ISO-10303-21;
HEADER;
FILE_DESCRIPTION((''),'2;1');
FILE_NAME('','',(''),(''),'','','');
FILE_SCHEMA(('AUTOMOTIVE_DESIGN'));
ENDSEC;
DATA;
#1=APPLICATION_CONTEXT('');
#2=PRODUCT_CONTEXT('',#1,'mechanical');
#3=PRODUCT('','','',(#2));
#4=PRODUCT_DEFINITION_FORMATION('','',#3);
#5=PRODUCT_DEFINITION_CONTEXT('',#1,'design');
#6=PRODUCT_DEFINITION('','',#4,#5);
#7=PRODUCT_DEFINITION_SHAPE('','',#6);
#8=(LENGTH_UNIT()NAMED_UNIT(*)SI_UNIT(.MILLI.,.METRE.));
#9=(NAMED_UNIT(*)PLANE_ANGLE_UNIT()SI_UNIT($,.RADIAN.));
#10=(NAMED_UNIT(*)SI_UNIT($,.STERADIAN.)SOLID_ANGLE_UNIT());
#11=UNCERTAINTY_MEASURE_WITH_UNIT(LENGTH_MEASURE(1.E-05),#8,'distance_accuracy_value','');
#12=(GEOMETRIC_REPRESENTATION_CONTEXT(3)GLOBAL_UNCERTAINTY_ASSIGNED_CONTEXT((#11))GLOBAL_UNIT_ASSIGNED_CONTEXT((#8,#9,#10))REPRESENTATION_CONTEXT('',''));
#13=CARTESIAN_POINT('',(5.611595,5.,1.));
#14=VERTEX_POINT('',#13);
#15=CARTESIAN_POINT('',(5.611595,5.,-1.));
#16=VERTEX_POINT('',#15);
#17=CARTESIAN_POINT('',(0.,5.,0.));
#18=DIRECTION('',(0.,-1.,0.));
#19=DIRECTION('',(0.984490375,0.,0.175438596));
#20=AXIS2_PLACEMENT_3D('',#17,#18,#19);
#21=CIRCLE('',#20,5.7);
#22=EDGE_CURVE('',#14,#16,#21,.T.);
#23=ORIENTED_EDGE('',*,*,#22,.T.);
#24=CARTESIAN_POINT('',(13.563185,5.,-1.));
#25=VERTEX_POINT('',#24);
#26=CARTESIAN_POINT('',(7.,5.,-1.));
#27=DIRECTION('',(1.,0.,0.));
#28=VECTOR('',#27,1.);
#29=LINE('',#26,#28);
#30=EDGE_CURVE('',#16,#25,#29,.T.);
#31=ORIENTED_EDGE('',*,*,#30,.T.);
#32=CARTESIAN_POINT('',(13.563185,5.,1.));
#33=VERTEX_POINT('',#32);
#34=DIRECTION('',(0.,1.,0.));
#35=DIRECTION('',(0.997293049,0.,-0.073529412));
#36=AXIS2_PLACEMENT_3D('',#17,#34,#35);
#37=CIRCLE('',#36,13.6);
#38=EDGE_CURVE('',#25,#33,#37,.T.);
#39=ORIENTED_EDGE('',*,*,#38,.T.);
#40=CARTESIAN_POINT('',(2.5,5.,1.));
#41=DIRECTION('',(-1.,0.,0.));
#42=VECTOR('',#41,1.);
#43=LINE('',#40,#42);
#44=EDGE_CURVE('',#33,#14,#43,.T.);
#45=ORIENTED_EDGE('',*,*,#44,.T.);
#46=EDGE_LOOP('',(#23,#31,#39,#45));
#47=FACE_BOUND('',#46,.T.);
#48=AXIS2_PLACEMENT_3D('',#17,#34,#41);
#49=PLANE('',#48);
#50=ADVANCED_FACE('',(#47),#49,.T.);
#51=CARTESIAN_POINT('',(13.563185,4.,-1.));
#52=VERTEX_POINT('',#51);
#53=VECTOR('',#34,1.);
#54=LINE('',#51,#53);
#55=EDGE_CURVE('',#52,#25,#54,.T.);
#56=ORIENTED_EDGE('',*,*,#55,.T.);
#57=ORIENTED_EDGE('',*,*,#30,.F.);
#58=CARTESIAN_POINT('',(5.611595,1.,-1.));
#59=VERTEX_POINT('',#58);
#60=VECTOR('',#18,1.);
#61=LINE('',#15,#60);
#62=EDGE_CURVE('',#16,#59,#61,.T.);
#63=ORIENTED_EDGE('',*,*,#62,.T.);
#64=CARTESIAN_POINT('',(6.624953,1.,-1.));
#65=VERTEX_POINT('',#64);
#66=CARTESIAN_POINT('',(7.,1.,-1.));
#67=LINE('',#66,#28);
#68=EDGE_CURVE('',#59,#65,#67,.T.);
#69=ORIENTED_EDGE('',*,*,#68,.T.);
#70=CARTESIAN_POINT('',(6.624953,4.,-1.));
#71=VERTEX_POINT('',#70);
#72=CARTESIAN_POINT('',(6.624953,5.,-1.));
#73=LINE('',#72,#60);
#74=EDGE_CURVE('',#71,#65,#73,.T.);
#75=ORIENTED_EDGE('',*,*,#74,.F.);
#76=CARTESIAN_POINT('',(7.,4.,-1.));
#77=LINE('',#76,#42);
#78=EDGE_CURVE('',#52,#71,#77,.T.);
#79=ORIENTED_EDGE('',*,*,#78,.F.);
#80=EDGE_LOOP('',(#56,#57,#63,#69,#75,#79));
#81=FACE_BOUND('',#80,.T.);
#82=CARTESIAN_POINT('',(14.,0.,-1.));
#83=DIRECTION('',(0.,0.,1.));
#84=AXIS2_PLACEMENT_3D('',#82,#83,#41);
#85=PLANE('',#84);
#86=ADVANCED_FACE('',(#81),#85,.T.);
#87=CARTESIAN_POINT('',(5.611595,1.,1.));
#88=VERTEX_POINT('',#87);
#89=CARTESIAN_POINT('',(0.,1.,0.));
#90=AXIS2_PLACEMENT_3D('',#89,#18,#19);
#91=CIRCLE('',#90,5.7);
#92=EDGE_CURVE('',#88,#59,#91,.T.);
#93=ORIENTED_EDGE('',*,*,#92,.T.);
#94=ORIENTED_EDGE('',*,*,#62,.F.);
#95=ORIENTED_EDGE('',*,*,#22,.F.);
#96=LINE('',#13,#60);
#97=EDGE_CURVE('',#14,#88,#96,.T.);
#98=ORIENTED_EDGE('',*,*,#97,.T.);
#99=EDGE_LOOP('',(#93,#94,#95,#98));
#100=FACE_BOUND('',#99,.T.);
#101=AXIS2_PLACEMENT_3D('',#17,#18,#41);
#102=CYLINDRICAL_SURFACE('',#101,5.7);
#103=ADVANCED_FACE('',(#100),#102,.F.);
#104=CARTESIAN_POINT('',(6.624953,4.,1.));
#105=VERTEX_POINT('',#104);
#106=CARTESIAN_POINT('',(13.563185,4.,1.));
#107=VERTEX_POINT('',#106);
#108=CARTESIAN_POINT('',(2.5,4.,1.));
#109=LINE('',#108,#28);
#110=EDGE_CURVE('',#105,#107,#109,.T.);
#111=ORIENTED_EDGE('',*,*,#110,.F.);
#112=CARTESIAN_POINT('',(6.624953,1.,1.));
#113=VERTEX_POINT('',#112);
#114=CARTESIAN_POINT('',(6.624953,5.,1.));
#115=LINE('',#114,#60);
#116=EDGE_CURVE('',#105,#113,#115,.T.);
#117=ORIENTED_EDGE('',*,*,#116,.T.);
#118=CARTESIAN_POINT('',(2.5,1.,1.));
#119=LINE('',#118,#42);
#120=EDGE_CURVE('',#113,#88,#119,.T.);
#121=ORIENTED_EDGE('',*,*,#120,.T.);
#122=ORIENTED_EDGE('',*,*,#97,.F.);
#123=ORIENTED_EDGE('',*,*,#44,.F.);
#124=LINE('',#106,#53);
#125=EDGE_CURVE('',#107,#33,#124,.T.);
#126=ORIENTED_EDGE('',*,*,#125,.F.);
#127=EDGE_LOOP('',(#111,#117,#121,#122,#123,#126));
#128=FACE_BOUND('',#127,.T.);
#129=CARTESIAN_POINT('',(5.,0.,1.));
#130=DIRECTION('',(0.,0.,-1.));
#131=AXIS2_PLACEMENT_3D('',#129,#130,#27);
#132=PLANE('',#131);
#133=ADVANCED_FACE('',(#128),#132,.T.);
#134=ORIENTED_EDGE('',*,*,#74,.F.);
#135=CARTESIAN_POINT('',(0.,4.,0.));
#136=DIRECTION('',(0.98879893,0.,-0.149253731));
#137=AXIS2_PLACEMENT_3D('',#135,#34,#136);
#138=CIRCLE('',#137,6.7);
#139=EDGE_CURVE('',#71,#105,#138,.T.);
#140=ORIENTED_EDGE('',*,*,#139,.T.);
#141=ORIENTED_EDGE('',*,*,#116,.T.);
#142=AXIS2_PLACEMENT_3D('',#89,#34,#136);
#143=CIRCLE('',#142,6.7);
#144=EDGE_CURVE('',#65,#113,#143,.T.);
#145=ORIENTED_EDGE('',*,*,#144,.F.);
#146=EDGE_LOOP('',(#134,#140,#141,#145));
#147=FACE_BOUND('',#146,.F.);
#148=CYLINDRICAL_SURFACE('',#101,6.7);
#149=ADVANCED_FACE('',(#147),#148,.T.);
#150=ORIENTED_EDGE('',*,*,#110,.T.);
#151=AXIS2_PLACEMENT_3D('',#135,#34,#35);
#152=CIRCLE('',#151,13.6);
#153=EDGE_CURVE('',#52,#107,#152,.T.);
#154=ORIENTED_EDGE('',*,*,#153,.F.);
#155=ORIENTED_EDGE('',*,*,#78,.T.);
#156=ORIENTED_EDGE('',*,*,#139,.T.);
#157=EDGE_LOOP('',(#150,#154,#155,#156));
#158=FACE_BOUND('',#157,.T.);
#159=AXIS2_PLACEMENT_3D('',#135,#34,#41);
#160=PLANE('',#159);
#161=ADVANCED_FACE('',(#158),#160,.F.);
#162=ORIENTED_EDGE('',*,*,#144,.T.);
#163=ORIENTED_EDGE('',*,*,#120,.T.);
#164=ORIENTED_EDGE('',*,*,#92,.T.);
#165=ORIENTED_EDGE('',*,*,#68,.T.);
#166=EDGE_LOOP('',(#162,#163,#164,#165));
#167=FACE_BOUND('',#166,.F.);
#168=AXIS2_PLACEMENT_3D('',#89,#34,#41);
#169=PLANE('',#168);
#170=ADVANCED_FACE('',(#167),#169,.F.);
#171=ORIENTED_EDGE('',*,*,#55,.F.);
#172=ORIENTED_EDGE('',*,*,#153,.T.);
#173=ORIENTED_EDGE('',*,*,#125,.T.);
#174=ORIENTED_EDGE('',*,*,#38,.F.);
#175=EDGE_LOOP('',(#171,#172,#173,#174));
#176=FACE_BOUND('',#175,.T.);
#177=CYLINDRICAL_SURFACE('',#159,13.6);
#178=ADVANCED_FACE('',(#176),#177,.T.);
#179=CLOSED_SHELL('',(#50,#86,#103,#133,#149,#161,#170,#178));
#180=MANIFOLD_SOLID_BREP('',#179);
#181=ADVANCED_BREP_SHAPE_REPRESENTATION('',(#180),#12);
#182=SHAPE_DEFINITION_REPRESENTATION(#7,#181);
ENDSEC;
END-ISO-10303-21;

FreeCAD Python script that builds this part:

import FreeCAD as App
import Part
import Sketcher

V = App.Vector

doc = App.newDocument("Part")
body = doc.addObject("PartDesign::Body", "Body")

sketch1 = doc.addObject("Sketcher::SketchObject", "Sketch")
body.addObject(sketch1)
sketch1.AttachmentSupport = (doc.XY_Plane, [""])
sketch1.MapMode = "FlatFace"
sketch1.addGeometry(Part.LineSegment(V(-13.6, 5, 0), V(-13.6, 4, 0)), False)
sketch1.addGeometry(Part.LineSegment(V(-13.6, 4, 0), V(-6.7, 4, 0)), False)
sketch1.addGeometry(Part.LineSegment(V(-6.7, 4, 0), V(-6.7, 1, 0)), False)
sketch1.addGeometry(Part.LineSegment(V(-6.7, 1, 0), V(-5.7, 1, 0)), False)
sketch1.addGeometry(Part.LineSegment(V(-5.7, 1, 0), V(-5.7, 5, 0)), False)
sketch1.addGeometry(Part.LineSegment(V(-5.7, 5, 0), V(-13.6, 5, 0)), False)
sketch1.addConstraint(Sketcher.Constraint("Coincident", 0, 2, 1, 1))
sketch1.addConstraint(Sketcher.Constraint("Coincident", 1, 2, 2, 1))
sketch1.addConstraint(Sketcher.Constraint("Coincident", 2, 2, 3, 1))
sketch1.addConstraint(Sketcher.Constraint("Coincident", 3, 2, 4, 1))
sketch1.addConstraint(Sketcher.Constraint("Coincident", 4, 2, 5, 1))
sketch1.addConstraint(Sketcher.Constraint("Coincident", 5, 2, 0, 1))
sketch1.addConstraint(Sketcher.Constraint("Vertical", 0))
sketch1.addConstraint(Sketcher.Constraint("Horizontal", 1))
sketch1.addConstraint(Sketcher.Constraint("Vertical", 2))
sketch1.addConstraint(Sketcher.Constraint("Horizontal", 3))
sketch1.addConstraint(Sketcher.Constraint("Vertical", 4))
sketch1.addConstraint(Sketcher.Constraint("Horizontal", 5))
sketch1.addConstraint(Sketcher.Constraint("Equal", 3, 0))
sketch1.addConstraint(Sketcher.Constraint("DistanceX", 3, 1, 3, 2, 1.0))
sketch1.addConstraint(Sketcher.Constraint("DistanceY", 2, 2, 2, 1, 3.0))
sketch1.addConstraint(Sketcher.Constraint("DistanceX", 1, 1, 1, 2, 6.9))
sketch1.addConstraint(Sketcher.Constraint("DistanceY", -1, 1, 2, 2, 1.0))
sketch1.addConstraint(Sketcher.Constraint("DistanceX", 3, 2, -1, 1, 5.7))
revolution = doc.addObject("PartDesign::Revolution", "Revolution")
body.addObject(revolution)
revolution.Profile = sketch1
revolution.ReferenceAxis = (sketch1, ["V_Axis"])
revolution.Angle = 360

sketch2 = doc.addObject("Sketcher::SketchObject", "Sketch001")
body.addObject(sketch2)
sketch2.AttachmentSupport = (doc.XZ_Plane, [""])
sketch2.MapMode = "FlatFace"
sketch2.addGeometry(Part.LineSegment(V(5, -1, 0), V(5, 1, 0)), False)
sketch2.addGeometry(Part.LineSegment(V(5, 1, 0), V(14, 1, 0)), False)
sketch2.addGeometry(Part.LineSegment(V(14, 1, 0), V(14, -1, 0)), False)
sketch2.addGeometry(Part.LineSegment(V(14, -1, 0), V(5, -1, 0)), False)
sketch2.addConstraint(Sketcher.Constraint("Coincident", 0, 2, 1, 1))
sketch2.addConstraint(Sketcher.Constraint("Coincident", 1, 2, 2, 1))
sketch2.addConstraint(Sketcher.Constraint("Coincident", 2, 2, 3, 1))
sketch2.addConstraint(Sketcher.Constraint("Coincident", 3, 2, 0, 1))
sketch2.addConstraint(Sketcher.Constraint("Vertical", 0))
sketch2.addConstraint(Sketcher.Constraint("Horizontal", 1))
sketch2.addConstraint(Sketcher.Constraint("Vertical", 2))
sketch2.addConstraint(Sketcher.Constraint("Horizontal", 3))
sketch2.addConstraint(Sketcher.Constraint("DistanceX", 1, 1, 1, 2, 9.0))
sketch2.addConstraint(Sketcher.Constraint("DistanceY", 0, 1, 0, 2, 2.0))
sketch2.addConstraint(Sketcher.Constraint("DistanceX", -1, 1, 0, 2, 5.0))
sketch2.addConstraint(Sketcher.Constraint("DistanceY", -1, 1, 0, 2, 1.0))
pocket1 = doc.addObject("PartDesign::Pocket", "Pocket")
body.addObject(pocket1)
pocket1.Profile = sketch2
pocket1.Length = 8

doc.recompute()
